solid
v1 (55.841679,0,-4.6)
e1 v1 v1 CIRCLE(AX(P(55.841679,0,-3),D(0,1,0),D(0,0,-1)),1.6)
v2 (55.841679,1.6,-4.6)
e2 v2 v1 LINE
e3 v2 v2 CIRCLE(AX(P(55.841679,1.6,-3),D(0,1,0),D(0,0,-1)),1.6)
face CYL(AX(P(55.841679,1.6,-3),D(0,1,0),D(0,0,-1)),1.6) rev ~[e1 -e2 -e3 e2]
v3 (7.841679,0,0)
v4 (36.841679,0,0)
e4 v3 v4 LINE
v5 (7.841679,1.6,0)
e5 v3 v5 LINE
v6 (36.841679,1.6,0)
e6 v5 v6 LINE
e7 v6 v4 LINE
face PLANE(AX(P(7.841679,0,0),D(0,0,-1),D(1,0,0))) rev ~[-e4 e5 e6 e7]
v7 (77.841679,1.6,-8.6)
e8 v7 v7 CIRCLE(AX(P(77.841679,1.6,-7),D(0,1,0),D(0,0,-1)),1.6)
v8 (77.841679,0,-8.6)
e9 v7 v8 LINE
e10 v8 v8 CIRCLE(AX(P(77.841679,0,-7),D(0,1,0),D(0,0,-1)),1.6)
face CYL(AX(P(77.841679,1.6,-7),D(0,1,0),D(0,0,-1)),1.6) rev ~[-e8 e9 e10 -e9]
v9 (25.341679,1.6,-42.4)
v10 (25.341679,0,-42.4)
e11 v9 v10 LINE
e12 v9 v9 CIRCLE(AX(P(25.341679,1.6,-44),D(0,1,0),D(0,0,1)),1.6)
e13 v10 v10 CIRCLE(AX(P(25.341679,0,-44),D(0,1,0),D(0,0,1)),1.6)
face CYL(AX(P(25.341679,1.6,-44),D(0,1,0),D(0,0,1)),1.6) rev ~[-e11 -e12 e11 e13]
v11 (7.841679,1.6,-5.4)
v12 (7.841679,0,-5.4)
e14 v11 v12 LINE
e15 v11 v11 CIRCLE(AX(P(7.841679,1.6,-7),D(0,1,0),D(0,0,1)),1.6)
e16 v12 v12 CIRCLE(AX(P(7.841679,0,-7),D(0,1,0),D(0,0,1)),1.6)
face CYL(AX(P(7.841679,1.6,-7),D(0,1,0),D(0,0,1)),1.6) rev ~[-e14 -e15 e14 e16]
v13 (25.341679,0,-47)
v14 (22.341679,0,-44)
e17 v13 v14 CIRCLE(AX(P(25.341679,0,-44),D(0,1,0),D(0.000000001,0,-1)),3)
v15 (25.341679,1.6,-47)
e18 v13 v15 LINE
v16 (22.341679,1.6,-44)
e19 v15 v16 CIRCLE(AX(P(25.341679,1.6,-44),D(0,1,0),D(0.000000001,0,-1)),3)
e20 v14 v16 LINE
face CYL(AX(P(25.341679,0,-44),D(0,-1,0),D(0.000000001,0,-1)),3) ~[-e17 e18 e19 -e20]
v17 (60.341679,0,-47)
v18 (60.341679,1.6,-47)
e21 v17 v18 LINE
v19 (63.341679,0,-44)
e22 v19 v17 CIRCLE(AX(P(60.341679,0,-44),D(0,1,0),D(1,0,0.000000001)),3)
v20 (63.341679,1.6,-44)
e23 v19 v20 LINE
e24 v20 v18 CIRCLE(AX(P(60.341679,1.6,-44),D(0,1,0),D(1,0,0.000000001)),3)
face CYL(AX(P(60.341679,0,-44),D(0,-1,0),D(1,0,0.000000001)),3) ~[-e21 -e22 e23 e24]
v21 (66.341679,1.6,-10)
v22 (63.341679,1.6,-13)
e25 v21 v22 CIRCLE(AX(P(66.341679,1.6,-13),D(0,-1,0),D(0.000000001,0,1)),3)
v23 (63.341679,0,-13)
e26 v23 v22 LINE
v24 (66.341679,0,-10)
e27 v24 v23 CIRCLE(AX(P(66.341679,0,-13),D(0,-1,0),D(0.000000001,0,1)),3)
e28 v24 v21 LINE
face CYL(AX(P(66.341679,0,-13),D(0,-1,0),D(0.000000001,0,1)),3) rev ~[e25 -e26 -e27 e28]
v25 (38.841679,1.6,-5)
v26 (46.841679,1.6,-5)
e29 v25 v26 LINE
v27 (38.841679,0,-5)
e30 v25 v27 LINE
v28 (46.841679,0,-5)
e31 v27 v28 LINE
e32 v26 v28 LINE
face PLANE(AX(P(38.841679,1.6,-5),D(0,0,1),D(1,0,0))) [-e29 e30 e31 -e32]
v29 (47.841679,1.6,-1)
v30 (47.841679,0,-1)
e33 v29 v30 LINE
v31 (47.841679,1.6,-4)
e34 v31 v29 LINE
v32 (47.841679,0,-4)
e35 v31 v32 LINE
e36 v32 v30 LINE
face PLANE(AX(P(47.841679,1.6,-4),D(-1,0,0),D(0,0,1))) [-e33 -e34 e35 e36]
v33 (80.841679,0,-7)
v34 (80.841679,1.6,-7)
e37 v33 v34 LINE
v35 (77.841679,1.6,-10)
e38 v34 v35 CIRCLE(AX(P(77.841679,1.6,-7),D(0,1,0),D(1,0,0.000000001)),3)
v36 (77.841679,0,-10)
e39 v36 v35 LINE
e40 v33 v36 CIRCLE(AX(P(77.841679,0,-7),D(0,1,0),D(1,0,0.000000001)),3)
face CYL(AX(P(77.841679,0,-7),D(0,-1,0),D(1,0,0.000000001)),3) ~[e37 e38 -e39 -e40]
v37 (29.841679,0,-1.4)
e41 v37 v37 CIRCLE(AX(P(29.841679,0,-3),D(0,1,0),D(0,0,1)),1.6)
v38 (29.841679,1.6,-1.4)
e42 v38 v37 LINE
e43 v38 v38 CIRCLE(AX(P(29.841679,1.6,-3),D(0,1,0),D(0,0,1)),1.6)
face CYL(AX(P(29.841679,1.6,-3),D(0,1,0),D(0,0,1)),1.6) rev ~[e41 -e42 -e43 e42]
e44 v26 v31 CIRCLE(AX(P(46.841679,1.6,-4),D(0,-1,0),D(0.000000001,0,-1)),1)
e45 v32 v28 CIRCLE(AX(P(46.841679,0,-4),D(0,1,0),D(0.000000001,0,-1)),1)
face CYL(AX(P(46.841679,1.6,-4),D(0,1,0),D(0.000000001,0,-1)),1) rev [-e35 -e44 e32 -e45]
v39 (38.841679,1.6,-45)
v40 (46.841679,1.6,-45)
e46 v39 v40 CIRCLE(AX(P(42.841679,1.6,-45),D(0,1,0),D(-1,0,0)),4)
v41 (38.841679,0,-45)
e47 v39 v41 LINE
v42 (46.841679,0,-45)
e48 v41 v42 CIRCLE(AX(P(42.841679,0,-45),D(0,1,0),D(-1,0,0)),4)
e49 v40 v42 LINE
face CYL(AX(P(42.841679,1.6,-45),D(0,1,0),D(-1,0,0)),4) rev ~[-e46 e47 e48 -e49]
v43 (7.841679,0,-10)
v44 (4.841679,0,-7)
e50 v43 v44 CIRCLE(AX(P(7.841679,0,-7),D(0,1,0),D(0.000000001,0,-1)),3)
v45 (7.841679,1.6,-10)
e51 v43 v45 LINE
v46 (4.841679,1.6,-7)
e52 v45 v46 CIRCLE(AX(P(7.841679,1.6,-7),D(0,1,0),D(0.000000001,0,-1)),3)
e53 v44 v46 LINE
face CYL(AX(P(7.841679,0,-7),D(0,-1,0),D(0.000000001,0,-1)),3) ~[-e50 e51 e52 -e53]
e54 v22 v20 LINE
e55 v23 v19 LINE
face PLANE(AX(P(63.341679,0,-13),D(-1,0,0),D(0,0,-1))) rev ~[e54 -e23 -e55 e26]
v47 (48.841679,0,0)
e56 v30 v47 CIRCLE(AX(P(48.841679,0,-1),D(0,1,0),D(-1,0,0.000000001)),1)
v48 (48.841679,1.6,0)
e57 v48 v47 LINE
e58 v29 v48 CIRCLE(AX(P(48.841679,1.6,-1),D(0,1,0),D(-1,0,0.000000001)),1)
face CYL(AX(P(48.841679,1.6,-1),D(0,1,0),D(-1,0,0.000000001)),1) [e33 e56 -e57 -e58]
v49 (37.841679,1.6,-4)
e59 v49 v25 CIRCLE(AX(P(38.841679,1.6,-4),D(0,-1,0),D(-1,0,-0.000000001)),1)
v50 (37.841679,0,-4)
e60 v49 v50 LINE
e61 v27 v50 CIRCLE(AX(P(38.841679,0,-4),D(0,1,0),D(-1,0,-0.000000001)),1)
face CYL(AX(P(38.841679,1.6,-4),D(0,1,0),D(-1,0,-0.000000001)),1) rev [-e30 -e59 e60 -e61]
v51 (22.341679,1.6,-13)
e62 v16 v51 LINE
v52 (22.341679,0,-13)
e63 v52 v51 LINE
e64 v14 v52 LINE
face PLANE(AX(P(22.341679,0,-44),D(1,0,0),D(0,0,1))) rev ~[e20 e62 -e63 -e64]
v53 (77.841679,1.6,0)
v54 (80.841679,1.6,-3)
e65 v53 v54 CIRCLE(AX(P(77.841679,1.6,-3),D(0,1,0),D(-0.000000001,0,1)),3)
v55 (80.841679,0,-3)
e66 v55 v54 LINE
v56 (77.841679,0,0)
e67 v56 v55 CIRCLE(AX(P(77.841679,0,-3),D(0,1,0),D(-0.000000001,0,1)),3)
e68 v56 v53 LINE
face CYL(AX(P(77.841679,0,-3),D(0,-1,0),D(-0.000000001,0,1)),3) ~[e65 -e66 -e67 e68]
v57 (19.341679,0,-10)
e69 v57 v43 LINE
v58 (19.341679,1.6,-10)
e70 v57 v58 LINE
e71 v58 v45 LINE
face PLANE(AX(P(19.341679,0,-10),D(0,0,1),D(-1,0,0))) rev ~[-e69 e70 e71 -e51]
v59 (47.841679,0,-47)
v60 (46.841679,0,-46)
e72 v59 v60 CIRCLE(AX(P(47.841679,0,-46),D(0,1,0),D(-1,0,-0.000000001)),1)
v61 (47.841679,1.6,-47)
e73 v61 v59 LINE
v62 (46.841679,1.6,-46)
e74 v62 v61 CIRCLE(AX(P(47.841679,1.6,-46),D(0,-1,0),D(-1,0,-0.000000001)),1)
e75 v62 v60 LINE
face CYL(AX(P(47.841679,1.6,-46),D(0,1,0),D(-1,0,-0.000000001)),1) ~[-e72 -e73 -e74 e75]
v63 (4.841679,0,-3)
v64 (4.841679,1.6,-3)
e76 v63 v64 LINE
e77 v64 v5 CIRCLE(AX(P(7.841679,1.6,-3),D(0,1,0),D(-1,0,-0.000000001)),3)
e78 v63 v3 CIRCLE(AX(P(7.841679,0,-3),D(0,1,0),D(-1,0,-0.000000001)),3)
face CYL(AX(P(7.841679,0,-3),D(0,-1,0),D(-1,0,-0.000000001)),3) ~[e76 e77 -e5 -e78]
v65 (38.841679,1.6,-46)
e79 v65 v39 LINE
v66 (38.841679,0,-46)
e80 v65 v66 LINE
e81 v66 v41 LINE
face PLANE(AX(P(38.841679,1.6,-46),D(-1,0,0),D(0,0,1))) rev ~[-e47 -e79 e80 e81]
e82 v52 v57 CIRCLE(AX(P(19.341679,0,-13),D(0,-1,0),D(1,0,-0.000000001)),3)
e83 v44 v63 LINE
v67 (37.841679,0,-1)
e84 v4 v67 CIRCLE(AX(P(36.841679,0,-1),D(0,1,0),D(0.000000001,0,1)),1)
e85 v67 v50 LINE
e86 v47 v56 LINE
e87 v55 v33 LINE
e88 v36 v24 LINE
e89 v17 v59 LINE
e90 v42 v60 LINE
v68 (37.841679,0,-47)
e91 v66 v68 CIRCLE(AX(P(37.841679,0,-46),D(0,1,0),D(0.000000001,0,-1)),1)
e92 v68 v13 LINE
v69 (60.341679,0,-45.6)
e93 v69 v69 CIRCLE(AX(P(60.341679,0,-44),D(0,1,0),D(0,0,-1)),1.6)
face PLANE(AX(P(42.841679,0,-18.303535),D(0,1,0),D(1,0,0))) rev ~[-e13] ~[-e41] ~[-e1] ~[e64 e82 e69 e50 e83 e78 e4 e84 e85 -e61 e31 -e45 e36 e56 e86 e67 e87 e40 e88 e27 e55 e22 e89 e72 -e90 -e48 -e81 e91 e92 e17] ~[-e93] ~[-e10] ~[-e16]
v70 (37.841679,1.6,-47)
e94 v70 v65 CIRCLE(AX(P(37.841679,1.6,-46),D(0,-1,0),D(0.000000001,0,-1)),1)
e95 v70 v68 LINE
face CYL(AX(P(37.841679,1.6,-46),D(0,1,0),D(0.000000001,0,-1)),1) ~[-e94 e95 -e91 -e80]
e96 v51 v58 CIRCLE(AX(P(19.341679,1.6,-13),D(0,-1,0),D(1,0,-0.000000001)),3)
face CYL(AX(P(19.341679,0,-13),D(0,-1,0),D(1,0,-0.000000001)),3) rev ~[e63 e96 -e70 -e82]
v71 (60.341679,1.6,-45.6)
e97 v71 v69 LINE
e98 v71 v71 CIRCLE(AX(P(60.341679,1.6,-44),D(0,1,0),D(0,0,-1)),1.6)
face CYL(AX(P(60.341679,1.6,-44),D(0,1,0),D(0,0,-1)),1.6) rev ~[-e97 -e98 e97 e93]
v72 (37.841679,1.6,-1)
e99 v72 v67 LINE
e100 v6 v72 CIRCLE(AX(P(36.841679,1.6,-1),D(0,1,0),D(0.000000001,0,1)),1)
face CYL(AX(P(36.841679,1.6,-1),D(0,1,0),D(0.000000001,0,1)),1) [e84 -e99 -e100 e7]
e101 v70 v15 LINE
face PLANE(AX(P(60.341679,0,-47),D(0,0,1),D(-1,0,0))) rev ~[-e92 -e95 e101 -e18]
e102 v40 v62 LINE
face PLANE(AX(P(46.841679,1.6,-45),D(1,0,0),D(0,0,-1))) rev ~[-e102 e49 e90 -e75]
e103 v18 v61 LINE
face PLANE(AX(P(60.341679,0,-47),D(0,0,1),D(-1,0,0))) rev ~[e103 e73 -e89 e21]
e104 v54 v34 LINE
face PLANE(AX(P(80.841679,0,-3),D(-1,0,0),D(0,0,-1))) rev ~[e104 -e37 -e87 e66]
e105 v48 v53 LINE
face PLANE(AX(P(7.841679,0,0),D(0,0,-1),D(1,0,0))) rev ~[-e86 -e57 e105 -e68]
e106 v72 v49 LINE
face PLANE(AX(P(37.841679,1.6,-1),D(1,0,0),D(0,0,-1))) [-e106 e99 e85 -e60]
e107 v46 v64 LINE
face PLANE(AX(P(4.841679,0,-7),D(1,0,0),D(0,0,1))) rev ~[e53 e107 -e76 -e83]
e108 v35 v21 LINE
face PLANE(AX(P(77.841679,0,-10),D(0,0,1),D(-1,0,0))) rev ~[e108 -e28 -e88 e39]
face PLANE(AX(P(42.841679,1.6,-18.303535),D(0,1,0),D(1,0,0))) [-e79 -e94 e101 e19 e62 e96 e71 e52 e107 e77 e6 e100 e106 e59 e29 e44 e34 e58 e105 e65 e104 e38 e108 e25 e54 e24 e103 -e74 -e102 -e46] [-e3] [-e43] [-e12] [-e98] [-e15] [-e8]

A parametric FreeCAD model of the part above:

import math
import FreeCAD as App
import Part
import Sketcher
from FreeCAD import Vector
Q = App.Units.Quantity

doc = App.newDocument("Part")
body = doc.addObject("PartDesign::Body", "Body")

# Sketch on XZ plane
sketch1 = doc.addObject("Sketcher::SketchObject", "Sketch")
body.addObject(sketch1)
sketch1.AttachmentSupport = (doc.XZ_Plane, [""])
sketch1.MapMode = "FlatFace"
sketch1.addGeometry(Part.LineSegment(Vector(7.8, 0, 0), Vector(77.8, 0, 0)), False)
sketch1.addGeometry(Part.ArcOfCircle(Part.Circle(Vector(77.8, -3, 0), Vector(0, 0, 1), 3), math.radians(0), math.radians(90)), False)
sketch1.addGeometry(Part.LineSegment(Vector(80.8, -3, 0), Vector(80.8, -7, 0)), False)
sketch1.addGeometry(Part.ArcOfCircle(Part.Circle(Vector(77.8, -7, 0), Vector(0, 0, 1), 3), math.radians(-90), math.radians(0)), False)
sketch1.addGeometry(Part.LineSegment(Vector(77.8, -10, 0), Vector(66.3, -10, 0)), False)
sketch1.addGeometry(Part.ArcOfCircle(Part.Circle(Vector(66.3, -13, 0), Vector(0, 0, 1), 3), math.radians(90), math.radians(180)), False)
sketch1.addGeometry(Part.LineSegment(Vector(63.3, -13, 0), Vector(63.3, -44, 0)), False)
sketch1.addGeometry(Part.ArcOfCircle(Part.Circle(Vector(60.3, -44, 0), Vector(0, 0, 1), 3), math.radians(-90), math.radians(0)), False)
sketch1.addGeometry(Part.LineSegment(Vector(60.3, -47, 0), Vector(25.3, -47, 0)), False)
sketch1.addGeometry(Part.ArcOfCircle(Part.Circle(Vector(25.3, -44, 0), Vector(0, 0, 1), 3), math.radians(180), math.radians(270)), False)
sketch1.addGeometry(Part.LineSegment(Vector(22.3, -44, 0), Vector(22.3, -13, 0)), False)
sketch1.addGeometry(Part.ArcOfCircle(Part.Circle(Vector(19.3, -13, 0), Vector(0, 0, 1), 3), math.radians(0), math.radians(90)), False)
sketch1.addGeometry(Part.LineSegment(Vector(19.3, -10, 0), Vector(7.8, -10, 0)), False)
sketch1.addGeometry(Part.ArcOfCircle(Part.Circle(Vector(7.8, -7, 0), Vector(0, 0, 1), 3), math.radians(180), math.radians(270)), False)
sketch1.addGeometry(Part.LineSegment(Vector(4.8, -7, 0), Vector(4.8, -3, 0)), False)
sketch1.addGeometry(Part.ArcOfCircle(Part.Circle(Vector(7.8, -3, 0), Vector(0, 0, 1), 3), math.radians(90), math.radians(180)), False)
sketch1.addConstraint(Sketcher.Constraint("Tangent", 0, 2, 1, 2))
sketch1.addConstraint(Sketcher.Constraint("Tangent", 1, 1, 2, 1))
sketch1.addConstraint(Sketcher.Constraint("Tangent", 2, 2, 3, 2))
sketch1.addConstraint(Sketcher.Constraint("Tangent", 3, 1, 4, 1))
sketch1.addConstraint(Sketcher.Constraint("Tangent", 4, 2, 5, 1))
sketch1.addConstraint(Sketcher.Constraint("Tangent", 5, 2, 6, 1))
sketch1.addConstraint(Sketcher.Constraint("Tangent", 6, 2, 7, 2))
sketch1.addConstraint(Sketcher.Constraint("Tangent", 7, 1, 8, 1))
sketch1.addConstraint(Sketcher.Constraint("Tangent", 8, 2, 9, 2))
sketch1.addConstraint(Sketcher.Constraint("Tangent", 9, 1, 10, 1))
sketch1.addConstraint(Sketcher.Constraint("Tangent", 10, 2, 11, 1))
sketch1.addConstraint(Sketcher.Constraint("Tangent", 11, 2, 12, 1))
sketch1.addConstraint(Sketcher.Constraint("Tangent", 12, 2, 13, 2))
sketch1.addConstraint(Sketcher.Constraint("Tangent", 13, 1, 14, 1))
sketch1.addConstraint(Sketcher.Constraint("Tangent", 14, 2, 15, 2))
sketch1.addConstraint(Sketcher.Constraint("Tangent", 15, 1, 0, 1))
sketch1.addConstraint(Sketcher.Constraint("Horizontal", 0))
sketch1.addConstraint(Sketcher.Constraint("Vertical", 2))
sketch1.addConstraint(Sketcher.Constraint("Horizontal", 4))
sketch1.addConstraint(Sketcher.Constraint("Vertical", 6))
sketch1.addConstraint(Sketcher.Constraint("Horizontal", 8))
sketch1.addConstraint(Sketcher.Constraint("Vertical", 10))
sketch1.addConstraint(Sketcher.Constraint("Horizontal", 12))
sketch1.addConstraint(Sketcher.Constraint("Vertical", 14))
sketch1.addConstraint(Sketcher.Constraint("Equal", 1, 3))
sketch1.addConstraint(Sketcher.Constraint("Equal", 3, 5))
sketch1.addConstraint(Sketcher.Constraint("Equal", 5, 7))
sketch1.addConstraint(Sketcher.Constraint("Equal", 7, 9))
sketch1.addConstraint(Sketcher.Constraint("Equal", 9, 11))
sketch1.addConstraint(Sketcher.Constraint("Equal", 11, 13))
sketch1.addConstraint(Sketcher.Constraint("Equal", 13, 15))
sketch1.addConstraint(Sketcher.Constraint("PointOnObject", 0, 2, -1))
sketch1.addConstraint(Sketcher.Constraint("Horizontal", 5, 3, 11, 3))
sketch1.addConstraint(Sketcher.Constraint("Equal", 4, 12))
sketch1.addConstraint(Sketcher.Constraint("Radius", 1, Q("3 mm")))
sketch1.addConstraint(Sketcher.Constraint("DistanceX", 0, 1, 0, 2, Q("70 mm")))
sketch1.addConstraint(Sketcher.Constraint("DistanceX", 8, 2, 8, 1, Q("35 mm")))
sketch1.addConstraint(Sketcher.Constraint("DistanceY", 2, 2, 2, 1, Q("4 mm")))
sketch1.addConstraint(Sketcher.Constraint("DistanceY", 6, 2, 6, 1, Q("31 mm")))
sketch1.addConstraint(Sketcher.Constraint("DistanceX", -1, 1, 1, 3, Q("77.841679 mm")))
pad1 = doc.addObject("PartDesign::Pad", "Pad")
body.addObject(pad1)
pad1.Profile = sketch1
pad1.Length = 1.6
pad1.Reversed = True

# Sketch on XZ plane
sketch2 = doc.addObject("Sketcher::SketchObject", "Sketch001")
body.addObject(sketch2)
sketch2.AttachmentSupport = (doc.XZ_Plane, [""])
sketch2.MapMode = "FlatFace"
sketch2.AttachmentOffset = App.Placement(Vector(0, 0, -1.6), App.Rotation())
sketch2.addGeometry(Part.LineSegment(Vector(37.8, -4, 0), Vector(37.8, -1, 0)), False)
sketch2.addGeometry(Part.ArcOfCircle(Part.Circle(Vector(36.8, -1, 0), Vector(0, 0, 1), 1), math.radians(0), math.radians(90)), False)
sketch2.addGeometry(Part.LineSegment(Vector(36.8, 0, 0), Vector(48.8, 0, 0)), False)
sketch2.addGeometry(Part.ArcOfCircle(Part.Circle(Vector(48.8, -1, 0), Vector(0, 0, 1), 1), math.radians(90), math.radians(180)), False)
sketch2.addGeometry(Part.LineSegment(Vector(47.8, -1, 0), Vector(47.8, -4, 0)), False)
sketch2.addGeometry(Part.ArcOfCircle(Part.Circle(Vector(46.8, -4, 0), Vector(0, 0, 1), 1), math.radians(-90), math.radians(0)), False)
sketch2.addGeometry(Part.LineSegment(Vector(46.8, -5, 0), Vector(38.8, -5, 0)), False)
sketch2.addGeometry(Part.ArcOfCircle(Part.Circle(Vector(38.8, -4, 0), Vector(0, 0, 1), 1), math.radians(-180), math.radians(-90)), False)
sketch2.addConstraint(Sketcher.Constraint("Tangent", 0, 2, 1, 1))
sketch2.addConstraint(Sketcher.Constraint("Tangent", 1, 2, 2, 1))
sketch2.addConstraint(Sketcher.Constraint("Tangent", 2, 2, 3, 1))
sketch2.addConstraint(Sketcher.Constraint("Tangent", 3, 2, 4, 1))
sketch2.addConstraint(Sketcher.Constraint("Tangent", 4, 2, 5, 2))
sketch2.addConstraint(Sketcher.Constraint("Tangent", 5, 1, 6, 1))
sketch2.addConstraint(Sketcher.Constraint("Tangent", 6, 2, 7, 2))
sketch2.addConstraint(Sketcher.Constraint("Tangent", 7, 1, 0, 1))
sketch2.addConstraint(Sketcher.Constraint("Vertical", 0))
sketch2.addConstraint(Sketcher.Constraint("Horizontal", 2))
sketch2.addConstraint(Sketcher.Constraint("Vertical", 4))
sketch2.addConstraint(Sketcher.Constraint("Horizontal", 6))
sketch2.addConstraint(Sketcher.Constraint("Equal", 1, 3))
sketch2.addConstraint(Sketcher.Constraint("Equal", 3, 5))
sketch2.addConstraint(Sketcher.Constraint("Equal", 5, 7))
sketch2.addConstraint(Sketcher.Constraint("PointOnObject", 1, 2, -1))
sketch2.addConstraint(Sketcher.Constraint("Radius", 1, Q("1 mm")))
sketch2.addConstraint(Sketcher.Constraint("DistanceX", 2, 1, 2, 2, Q("12 mm")))
sketch2.addConstraint(Sketcher.Constraint("DistanceY", 0, 1, 0, 2, Q("3 mm")))
sketch2.addConstraint(Sketcher.Constraint("DistanceX", -1, 1, 1, 3, Q("36.841679 mm")))
pocket1 = doc.addObject("PartDesign::Pocket", "Pocket")
body.addObject(pocket1)
pocket1.Profile = sketch2
pocket1.Length = 10
pocket1.Reversed = True

# Sketch on XZ plane
sketch3 = doc.addObject("Sketcher::SketchObject", "Sketch002")
body.addObject(sketch3)
sketch3.AttachmentSupport = (doc.XZ_Plane, [""])
sketch3.MapMode = "FlatFace"
sketch3.AttachmentOffset = App.Placement(Vector(0, 0, -1.6), App.Rotation())
sketch3.addGeometry(Part.Circle(Vector(7.8, -7, 0), Vector(0, 0, 1), 1.6), False)
sketch3.addGeometry(Part.Circle(Vector(29.8, -3, 0), Vector(0, 0, 1), 1.6), False)
sketch3.addGeometry(Part.Circle(Vector(25.3, -44, 0), Vector(0, 0, 1), 1.6), False)
sketch3.addGeometry(Part.Circle(Vector(60.3, -44, 0), Vector(0, 0, 1), 1.6), False)
sketch3.addGeometry(Part.Circle(Vector(55.8, -3, 0), Vector(0, 0, 1), 1.6), False)
sketch3.addGeometry(Part.Circle(Vector(77.8, -7, 0), Vector(0, 0, 1), 1.6), False)
sketch3.addConstraint(Sketcher.Constraint("Equal", 0, 1))
sketch3.addConstraint(Sketcher.Constraint("Equal", 1, 2))
sketch3.addConstraint(Sketcher.Constraint("Equal", 2, 3))
sketch3.addConstraint(Sketcher.Constraint("Equal", 3, 4))
sketch3.addConstraint(Sketcher.Constraint("Equal", 4, 5))
sketch3.addConstraint(Sketcher.Constraint("Horizontal", 2, 3, 3, 3))
sketch3.addConstraint(Sketcher.Constraint("Horizontal", 1, 3, 4, 3))
sketch3.addConstraint(Sketcher.Constraint("Horizontal", 0, 3, 5, 3))
sketch3.addConstraint(Sketcher.Constraint("Diameter", 0, Q("3.2 mm")))
sketch3.addConstraint(Sketcher.Constraint("DistanceY", 0, 3, -1, 1, Q("7 mm")))
sketch3.addConstraint(Sketcher.Constraint("DistanceY", 1, 3, -1, 1, Q("3 mm")))
sketch3.addConstraint(Sketcher.Constraint("DistanceY", 2, 3, -1, 1, Q("44 mm")))
sketch3.addConstraint(Sketcher.Constraint("DistanceX", 0, 3, 1, 3, Q("22 mm")))
sketch3.addConstraint(Sketcher.Constraint("DistanceX", 2, 3, 3, 3, Q("35 mm")))
sketch3.addConstraint(Sketcher.Constraint("DistanceX", 1, 3, 4, 3, Q("26 mm")))
sketch3.addConstraint(Sketcher.Constraint("DistanceX", 4, 3, 5, 3, Q("22 mm")))
sketch3.addConstraint(Sketcher.Constraint("DistanceX", 0, 3, 2, 3, Q("17.5 mm")))
sketch3.addConstraint(Sketcher.Constraint("DistanceX", -1, 1, 0, 3, Q("7.841679 mm")))
pocket2 = doc.addObject("PartDesign::Pocket", "Pocket001")
body.addObject(pocket2)
pocket2.Profile = sketch3
pocket2.Type = "ThroughAll"
pocket2.Reversed = True

# Sketch on XZ plane
sketch4 = doc.addObject("Sketcher::SketchObject", "Sketch003")
body.addObject(sketch4)
sketch4.AttachmentSupport = (doc.XZ_Plane, [""])
sketch4.MapMode = "FlatFace"
sketch4.AttachmentOffset = App.Placement(Vector(0, 0, -1.6), App.Rotation())
sketch4.addGeometry(Part.LineSegment(Vector(46.8, -45, 0), Vector(46.8, -46, 0)), False)
sketch4.addGeometry(Part.ArcOfCircle(Part.Circle(Vector(47.8, -46, 0), Vector(0, 0, 1), 1), math.radians(-180), math.radians(-90)), False)
sketch4.addGeometry(Part.LineSegment(Vector(47.8, -47, 0), Vector(37.8, -47, 0)), False)
sketch4.addGeometry(Part.ArcOfCircle(Part.Circle(Vector(37.8, -46, 0), Vector(0, 0, 1), 1), math.radians(-90), math.radians(0)), False)
sketch4.addGeometry(Part.LineSegment(Vector(38.8, -46, 0), Vector(38.8, -45, 0)), False)
sketch4.addGeometry(Part.ArcOfCircle(Part.Circle(Vector(42.8, -45, 0), Vector(0, 0, 1), 4), math.radians(0), math.radians(180)), False)
sketch4.addConstraint(Sketcher.Constraint("Tangent", 0, 2, 1, 1))
sketch4.addConstraint(Sketcher.Constraint("Tangent", 1, 2, 2, 1))
sketch4.addConstraint(Sketcher.Constraint("Tangent", 2, 2, 3, 1))
sketch4.addConstraint(Sketcher.Constraint("Tangent", 3, 2, 4, 1))
sketch4.addConstraint(Sketcher.Constraint("Tangent", 4, 2, 5, 2))
sketch4.addConstraint(Sketcher.Constraint("Tangent", 5, 1, 0, 1))
sketch4.addConstraint(Sketcher.Constraint("Vertical", 0))
sketch4.addConstraint(Sketcher.Constraint("Horizontal", 2))
sketch4.addConstraint(Sketcher.Constraint("Vertical", 4))
sketch4.addConstraint(Sketcher.Constraint("Equal", 1, 3))
sketch4.addConstraint(Sketcher.Constraint("Radius", 1, Q("1 mm")))
sketch4.addConstraint(Sketcher.Constraint("Radius", 5, Q("4 mm")))
sketch4.addConstraint(Sketcher.Constraint("DistanceY", 0, 2, 0, 1, Q("1 mm")))
sketch4.addConstraint(Sketcher.Constraint("DistanceY", 1, 3, -1, 1, Q("46 mm")))
sketch4.addConstraint(Sketcher.Constraint("DistanceX", -1, 1, 1, 3, Q("47.841679 mm")))
pocket3 = doc.addObject("PartDesign::Pocket", "Pocket002")
body.addObject(pocket3)
pocket3.Profile = sketch4
pocket3.Length = 5
pocket3.Reversed = True

doc.recompute()
